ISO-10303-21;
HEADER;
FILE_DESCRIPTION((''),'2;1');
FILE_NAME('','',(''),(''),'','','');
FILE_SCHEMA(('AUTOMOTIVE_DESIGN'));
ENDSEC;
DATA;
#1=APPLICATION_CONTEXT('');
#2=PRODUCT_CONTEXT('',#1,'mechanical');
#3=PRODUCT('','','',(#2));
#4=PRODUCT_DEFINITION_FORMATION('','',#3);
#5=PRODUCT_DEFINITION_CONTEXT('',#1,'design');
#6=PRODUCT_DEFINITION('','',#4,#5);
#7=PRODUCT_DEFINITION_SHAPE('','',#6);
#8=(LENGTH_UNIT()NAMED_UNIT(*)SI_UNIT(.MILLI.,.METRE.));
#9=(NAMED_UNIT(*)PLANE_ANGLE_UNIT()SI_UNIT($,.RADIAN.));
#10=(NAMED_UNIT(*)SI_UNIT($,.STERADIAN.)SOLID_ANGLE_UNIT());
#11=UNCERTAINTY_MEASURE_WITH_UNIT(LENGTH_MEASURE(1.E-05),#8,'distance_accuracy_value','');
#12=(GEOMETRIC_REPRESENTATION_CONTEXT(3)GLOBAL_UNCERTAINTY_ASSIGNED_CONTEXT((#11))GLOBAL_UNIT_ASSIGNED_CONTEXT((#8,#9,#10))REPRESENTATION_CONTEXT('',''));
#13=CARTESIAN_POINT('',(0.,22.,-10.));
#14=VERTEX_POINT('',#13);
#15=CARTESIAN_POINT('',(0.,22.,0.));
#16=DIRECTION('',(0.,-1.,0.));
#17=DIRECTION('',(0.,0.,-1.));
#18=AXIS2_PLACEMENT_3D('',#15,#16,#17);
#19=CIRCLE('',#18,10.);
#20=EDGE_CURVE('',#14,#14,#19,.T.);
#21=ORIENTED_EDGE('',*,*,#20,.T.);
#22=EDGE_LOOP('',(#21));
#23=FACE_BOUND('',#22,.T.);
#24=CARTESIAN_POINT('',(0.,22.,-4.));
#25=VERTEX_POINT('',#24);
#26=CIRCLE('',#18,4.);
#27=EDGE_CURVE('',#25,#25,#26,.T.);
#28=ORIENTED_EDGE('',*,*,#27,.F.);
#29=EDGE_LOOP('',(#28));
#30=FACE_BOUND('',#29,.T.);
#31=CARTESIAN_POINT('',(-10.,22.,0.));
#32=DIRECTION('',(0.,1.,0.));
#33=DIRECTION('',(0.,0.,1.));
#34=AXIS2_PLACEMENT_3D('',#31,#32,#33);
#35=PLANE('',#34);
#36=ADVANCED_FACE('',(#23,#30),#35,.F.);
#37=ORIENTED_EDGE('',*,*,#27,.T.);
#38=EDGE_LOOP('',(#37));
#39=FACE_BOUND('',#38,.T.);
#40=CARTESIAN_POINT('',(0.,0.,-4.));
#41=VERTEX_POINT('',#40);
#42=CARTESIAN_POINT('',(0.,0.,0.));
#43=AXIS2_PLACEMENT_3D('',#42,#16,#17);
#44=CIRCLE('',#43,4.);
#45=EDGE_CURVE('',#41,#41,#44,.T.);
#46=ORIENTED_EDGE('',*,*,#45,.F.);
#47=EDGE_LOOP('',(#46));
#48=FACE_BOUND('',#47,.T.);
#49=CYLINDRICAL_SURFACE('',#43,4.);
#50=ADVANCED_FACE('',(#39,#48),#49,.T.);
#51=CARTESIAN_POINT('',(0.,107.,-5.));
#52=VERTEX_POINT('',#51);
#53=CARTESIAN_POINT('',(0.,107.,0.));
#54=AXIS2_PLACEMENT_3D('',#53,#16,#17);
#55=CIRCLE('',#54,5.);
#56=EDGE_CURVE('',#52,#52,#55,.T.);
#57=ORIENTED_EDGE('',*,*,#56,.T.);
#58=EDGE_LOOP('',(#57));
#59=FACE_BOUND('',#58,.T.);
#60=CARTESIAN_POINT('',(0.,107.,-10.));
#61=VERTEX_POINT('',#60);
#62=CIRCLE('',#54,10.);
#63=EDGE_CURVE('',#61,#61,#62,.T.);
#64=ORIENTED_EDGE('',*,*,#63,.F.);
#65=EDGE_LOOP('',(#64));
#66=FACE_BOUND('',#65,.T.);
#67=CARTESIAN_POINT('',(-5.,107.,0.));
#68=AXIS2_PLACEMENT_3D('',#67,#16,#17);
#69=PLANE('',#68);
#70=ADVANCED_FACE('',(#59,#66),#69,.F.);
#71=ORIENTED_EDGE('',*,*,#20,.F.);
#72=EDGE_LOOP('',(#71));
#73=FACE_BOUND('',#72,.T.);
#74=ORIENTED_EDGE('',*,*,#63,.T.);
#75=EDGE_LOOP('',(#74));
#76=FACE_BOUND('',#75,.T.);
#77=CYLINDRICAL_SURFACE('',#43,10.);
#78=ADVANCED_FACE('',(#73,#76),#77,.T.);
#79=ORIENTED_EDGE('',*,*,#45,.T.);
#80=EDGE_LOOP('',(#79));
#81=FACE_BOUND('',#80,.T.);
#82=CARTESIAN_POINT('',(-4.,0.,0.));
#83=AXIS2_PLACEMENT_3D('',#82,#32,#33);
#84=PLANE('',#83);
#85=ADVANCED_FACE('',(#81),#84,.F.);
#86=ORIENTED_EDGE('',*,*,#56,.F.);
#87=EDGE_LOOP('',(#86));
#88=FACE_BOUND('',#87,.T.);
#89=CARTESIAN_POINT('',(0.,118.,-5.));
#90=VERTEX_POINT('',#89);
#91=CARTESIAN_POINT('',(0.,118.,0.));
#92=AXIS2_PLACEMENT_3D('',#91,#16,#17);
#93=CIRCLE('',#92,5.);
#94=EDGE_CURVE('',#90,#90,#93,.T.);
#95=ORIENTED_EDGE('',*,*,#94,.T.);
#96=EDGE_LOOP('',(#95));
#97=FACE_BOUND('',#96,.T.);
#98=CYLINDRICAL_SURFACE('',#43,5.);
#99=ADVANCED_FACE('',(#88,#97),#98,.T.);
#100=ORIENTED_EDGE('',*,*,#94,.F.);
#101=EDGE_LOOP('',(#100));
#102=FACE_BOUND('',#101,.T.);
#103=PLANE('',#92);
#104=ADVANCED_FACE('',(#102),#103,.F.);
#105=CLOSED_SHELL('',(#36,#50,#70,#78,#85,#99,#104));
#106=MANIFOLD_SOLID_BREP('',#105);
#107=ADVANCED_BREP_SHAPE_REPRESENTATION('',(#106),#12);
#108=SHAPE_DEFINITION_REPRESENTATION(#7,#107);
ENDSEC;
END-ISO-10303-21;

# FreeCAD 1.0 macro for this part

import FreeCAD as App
import Part
import Sketcher

V = App.Vector
Q = App.Units.Quantity


def add_polygon(sketch, points):
    """Adds a closed chain of lines whose ends are joined by coincident constraints."""
    first, n = sketch.GeometryCount, len(points)
    for a, b in zip(points, points[1:] + points[:1]):
        sketch.addGeometry(Part.LineSegment(App.Vector(*a, 0), App.Vector(*b, 0)), False)
    for i in range(n):
        sketch.addConstraint(Sketcher.Constraint("Coincident", first + i, 2, first + (i + 1) % n, 1))

doc = App.newDocument("Part")
params = doc.addObject("Spreadsheet::Sheet", "Params")
for row, (alias, value) in enumerate([
    ("sketch1_width", "5 mm"),
    ("sketch1_width2", "6 mm"),
    ("sketch1_height", "118 mm"),
    ("sketch1_height2", "11 mm"),
    ("sketch1_height3", "85 mm"),
    ("revolution_angle", "360 deg"),
], start=1):
    params.set(f"A{row}", alias)
    params.set(f"B{row}", "=" + value)
    params.setAlias(f"B{row}", alias)

body = doc.addObject("PartDesign::Body", "Body")

sketch1 = body.newObject("Sketcher::SketchObject", "Sketch")
sketch1.AttachmentSupport = (doc.getObject("XY_Plane"), [""])
sketch1.MapMode = "FlatFace"
add_polygon(sketch1, [(0, 0), (0, 118), (-5, 118), (-5, 107), (-10, 107), (-10, 22), (-4, 22), (-4, 0)])
sketch1.addConstraint([
    Sketcher.Constraint("Vertical", 0),
    Sketcher.Constraint("Horizontal", 1),
    Sketcher.Constraint("Vertical", 2),
    Sketcher.Constraint("Horizontal", 3),
    Sketcher.Constraint("Vertical", 4),
    Sketcher.Constraint("Horizontal", 5),
    Sketcher.Constraint("Vertical", 6),
    Sketcher.Constraint("Horizontal", 7),
    Sketcher.Constraint("Coincident", 7, 2, -1, 1),
    Sketcher.Constraint("Equal", 1, 3),
    Sketcher.Constraint("DistanceX", 1, 2, 1, 1, Q("5 mm")),
    Sketcher.Constraint("DistanceX", 5, 1, 5, 2, Q("6 mm")),
    Sketcher.Constraint("DistanceY", 0, 1, 0, 2, Q("118 mm")),
    Sketcher.Constraint("DistanceY", 2, 2, 2, 1, Q("11 mm")),
    Sketcher.Constraint("DistanceY", 4, 2, 4, 1, Q("85 mm")),
])
sketch1.setExpression("Constraints[18]", "Params.sketch1_width")
sketch1.setExpression("Constraints[19]", "Params.sketch1_width2")
sketch1.setExpression("Constraints[20]", "Params.sketch1_height")
sketch1.setExpression("Constraints[21]", "Params.sketch1_height2")
sketch1.setExpression("Constraints[22]", "Params.sketch1_height3")
revolution = body.newObject("PartDesign::Revolution", "Revolution")
revolution.Profile = sketch1
revolution.ReferenceAxis = (sketch1, ["V_Axis"])
revolution.setExpression("Angle", "Params.revolution_angle")

doc.recompute()
